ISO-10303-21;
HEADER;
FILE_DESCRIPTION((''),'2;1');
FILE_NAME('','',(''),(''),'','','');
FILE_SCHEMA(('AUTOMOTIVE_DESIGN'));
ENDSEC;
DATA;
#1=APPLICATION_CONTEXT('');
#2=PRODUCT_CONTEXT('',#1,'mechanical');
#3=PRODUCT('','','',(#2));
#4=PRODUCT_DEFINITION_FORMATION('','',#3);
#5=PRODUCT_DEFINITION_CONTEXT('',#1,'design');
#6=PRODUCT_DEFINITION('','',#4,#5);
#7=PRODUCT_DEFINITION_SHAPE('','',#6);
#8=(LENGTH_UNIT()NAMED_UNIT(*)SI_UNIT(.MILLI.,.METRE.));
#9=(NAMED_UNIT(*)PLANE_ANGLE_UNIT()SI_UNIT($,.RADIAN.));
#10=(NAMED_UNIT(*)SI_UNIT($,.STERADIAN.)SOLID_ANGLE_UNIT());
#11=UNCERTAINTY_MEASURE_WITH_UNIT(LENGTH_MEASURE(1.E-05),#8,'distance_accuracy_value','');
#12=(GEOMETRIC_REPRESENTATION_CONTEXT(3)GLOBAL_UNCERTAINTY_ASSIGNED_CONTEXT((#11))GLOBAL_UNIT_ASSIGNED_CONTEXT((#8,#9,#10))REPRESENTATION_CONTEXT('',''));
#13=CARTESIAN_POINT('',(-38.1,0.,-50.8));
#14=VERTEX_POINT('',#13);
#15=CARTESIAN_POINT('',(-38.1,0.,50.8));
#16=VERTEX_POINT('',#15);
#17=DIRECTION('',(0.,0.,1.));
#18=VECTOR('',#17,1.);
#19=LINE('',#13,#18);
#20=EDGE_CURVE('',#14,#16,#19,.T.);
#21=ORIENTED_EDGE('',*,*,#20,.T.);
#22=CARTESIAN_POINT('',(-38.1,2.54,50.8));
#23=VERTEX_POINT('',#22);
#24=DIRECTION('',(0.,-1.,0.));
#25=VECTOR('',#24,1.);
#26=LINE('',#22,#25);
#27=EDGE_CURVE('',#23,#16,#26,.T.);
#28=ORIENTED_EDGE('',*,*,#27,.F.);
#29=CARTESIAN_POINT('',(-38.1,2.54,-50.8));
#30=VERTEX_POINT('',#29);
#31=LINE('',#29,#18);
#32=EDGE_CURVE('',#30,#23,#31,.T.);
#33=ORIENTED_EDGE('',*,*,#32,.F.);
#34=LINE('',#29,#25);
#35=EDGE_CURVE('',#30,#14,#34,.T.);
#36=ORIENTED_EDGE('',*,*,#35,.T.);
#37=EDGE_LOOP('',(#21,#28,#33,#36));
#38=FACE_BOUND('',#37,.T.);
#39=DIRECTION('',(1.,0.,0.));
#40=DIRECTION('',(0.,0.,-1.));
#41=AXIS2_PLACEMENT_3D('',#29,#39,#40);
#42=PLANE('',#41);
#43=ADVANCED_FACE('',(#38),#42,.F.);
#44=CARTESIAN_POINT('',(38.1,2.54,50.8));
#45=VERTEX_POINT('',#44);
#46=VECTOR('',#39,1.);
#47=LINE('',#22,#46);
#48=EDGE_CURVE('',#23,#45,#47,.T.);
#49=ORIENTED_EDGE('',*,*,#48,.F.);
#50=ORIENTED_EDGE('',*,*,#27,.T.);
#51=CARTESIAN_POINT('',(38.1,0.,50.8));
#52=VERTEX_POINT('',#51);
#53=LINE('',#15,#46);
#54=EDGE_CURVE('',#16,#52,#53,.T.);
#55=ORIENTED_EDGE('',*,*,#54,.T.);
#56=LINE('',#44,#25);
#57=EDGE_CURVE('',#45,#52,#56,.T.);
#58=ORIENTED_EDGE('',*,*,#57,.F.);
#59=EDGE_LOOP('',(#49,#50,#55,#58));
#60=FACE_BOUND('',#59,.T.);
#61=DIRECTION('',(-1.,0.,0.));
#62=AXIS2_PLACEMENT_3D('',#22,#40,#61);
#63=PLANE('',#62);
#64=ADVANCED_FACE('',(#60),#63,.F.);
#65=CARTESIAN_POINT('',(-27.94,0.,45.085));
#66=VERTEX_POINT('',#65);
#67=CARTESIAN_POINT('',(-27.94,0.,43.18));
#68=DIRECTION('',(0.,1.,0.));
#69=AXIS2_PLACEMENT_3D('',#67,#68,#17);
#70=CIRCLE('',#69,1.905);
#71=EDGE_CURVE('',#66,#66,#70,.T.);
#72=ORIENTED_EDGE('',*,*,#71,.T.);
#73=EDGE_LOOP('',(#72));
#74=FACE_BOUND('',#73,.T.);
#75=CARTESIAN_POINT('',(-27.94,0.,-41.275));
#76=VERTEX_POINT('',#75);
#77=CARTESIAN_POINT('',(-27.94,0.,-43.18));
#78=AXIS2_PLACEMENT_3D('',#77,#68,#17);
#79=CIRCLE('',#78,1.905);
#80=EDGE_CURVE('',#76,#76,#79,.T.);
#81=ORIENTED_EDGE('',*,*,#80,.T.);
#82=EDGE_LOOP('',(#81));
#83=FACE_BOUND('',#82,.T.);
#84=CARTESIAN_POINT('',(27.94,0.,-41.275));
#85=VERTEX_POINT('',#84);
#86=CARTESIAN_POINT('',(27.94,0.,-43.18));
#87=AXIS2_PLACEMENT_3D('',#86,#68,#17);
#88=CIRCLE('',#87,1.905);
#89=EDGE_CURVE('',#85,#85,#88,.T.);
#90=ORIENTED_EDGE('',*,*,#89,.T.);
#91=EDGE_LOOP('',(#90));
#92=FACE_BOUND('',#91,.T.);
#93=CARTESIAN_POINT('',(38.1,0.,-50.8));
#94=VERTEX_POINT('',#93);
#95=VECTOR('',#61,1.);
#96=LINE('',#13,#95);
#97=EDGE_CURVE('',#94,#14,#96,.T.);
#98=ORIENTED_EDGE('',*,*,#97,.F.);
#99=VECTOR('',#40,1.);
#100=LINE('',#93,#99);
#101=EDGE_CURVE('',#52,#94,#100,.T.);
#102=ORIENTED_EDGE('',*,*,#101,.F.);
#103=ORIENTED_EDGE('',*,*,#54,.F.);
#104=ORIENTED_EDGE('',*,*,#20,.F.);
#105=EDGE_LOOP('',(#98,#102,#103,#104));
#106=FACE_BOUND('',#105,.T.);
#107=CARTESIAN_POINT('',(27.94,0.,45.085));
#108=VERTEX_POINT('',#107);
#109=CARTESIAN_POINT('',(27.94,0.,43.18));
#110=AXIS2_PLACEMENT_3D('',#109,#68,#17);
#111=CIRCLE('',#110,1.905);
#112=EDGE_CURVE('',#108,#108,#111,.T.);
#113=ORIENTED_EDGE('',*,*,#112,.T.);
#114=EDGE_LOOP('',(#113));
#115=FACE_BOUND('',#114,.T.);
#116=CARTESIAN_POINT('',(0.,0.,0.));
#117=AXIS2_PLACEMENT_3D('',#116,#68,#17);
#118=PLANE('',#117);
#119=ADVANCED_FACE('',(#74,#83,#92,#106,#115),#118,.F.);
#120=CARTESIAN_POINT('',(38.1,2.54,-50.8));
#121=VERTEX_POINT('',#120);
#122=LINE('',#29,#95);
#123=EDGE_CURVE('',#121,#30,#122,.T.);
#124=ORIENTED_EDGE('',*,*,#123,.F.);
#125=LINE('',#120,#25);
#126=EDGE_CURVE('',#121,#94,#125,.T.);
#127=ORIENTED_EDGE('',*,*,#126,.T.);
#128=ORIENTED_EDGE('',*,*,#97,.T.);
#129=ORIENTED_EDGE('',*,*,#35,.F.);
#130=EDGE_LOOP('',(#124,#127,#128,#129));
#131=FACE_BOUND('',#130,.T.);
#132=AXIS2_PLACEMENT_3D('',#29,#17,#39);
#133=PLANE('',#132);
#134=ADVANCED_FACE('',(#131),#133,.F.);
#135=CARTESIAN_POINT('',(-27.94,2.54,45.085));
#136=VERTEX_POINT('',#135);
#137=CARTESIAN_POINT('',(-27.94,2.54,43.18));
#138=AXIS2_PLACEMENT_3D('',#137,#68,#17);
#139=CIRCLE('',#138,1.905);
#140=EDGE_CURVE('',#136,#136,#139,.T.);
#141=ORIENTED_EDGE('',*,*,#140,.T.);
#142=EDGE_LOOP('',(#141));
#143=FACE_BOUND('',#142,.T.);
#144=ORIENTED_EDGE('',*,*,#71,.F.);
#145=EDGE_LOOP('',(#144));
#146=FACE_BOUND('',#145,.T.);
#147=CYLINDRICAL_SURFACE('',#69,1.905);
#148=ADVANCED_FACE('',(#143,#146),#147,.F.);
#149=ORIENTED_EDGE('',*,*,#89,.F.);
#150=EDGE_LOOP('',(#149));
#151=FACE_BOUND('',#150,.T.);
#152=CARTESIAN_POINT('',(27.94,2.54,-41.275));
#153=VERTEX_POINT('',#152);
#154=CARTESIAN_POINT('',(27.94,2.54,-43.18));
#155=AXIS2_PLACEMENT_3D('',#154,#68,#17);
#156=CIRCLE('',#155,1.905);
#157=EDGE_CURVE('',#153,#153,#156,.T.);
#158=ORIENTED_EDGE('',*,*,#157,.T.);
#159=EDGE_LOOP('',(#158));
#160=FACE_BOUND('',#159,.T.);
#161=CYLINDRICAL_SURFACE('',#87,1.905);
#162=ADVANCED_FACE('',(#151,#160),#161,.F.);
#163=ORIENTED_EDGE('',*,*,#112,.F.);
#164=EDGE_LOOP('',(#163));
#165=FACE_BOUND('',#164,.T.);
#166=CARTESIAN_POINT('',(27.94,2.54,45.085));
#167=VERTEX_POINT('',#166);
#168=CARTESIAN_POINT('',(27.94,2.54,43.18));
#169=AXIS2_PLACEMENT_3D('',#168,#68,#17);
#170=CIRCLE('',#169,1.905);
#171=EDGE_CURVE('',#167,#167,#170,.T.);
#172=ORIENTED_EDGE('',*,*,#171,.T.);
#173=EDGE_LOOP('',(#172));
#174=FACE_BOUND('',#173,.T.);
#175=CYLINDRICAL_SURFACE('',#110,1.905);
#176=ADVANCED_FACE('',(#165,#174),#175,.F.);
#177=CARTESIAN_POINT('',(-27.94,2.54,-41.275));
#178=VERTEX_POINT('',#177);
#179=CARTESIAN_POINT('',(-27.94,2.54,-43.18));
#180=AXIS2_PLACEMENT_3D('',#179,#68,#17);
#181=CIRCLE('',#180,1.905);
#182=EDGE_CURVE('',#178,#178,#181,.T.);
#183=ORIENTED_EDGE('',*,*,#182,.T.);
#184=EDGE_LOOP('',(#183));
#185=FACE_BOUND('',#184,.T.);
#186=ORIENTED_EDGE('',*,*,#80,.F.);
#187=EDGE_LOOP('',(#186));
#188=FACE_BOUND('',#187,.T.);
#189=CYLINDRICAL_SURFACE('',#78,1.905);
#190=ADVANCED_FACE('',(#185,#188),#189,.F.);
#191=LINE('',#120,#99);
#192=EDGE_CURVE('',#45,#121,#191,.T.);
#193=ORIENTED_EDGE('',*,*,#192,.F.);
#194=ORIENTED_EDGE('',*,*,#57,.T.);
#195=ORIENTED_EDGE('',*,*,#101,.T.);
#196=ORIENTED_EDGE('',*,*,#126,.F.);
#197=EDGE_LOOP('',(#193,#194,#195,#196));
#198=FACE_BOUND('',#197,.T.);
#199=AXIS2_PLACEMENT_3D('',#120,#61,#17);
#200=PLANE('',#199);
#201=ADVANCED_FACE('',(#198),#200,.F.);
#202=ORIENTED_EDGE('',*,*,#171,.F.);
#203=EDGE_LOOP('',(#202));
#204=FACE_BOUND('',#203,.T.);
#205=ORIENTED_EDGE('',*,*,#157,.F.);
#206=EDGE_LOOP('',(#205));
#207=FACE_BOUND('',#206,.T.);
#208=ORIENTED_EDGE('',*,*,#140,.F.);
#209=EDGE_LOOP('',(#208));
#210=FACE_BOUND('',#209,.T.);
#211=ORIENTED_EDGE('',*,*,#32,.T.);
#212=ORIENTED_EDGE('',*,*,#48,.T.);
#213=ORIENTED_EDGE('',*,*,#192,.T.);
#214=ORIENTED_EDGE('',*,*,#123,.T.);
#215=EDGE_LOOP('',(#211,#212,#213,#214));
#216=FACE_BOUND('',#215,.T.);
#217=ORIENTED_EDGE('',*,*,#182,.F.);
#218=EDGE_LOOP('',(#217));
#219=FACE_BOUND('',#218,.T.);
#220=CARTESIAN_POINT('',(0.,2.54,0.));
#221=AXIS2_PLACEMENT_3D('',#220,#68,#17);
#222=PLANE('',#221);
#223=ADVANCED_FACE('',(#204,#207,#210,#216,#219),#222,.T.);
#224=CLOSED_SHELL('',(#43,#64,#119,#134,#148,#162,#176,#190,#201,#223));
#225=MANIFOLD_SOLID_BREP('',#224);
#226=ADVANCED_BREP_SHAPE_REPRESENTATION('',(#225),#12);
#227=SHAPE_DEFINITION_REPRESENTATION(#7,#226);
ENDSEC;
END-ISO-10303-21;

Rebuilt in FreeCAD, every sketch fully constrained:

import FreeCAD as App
import Part
import Sketcher

V = App.Vector
Q = App.Units.Quantity


def add_polygon(sketch, points):
    """Adds a closed chain of lines whose ends are joined by coincident constraints."""
    first, n = sketch.GeometryCount, len(points)
    for a, b in zip(points, points[1:] + points[:1]):
        sketch.addGeometry(Part.LineSegment(App.Vector(*a, 0), App.Vector(*b, 0)), False)
    for i in range(n):
        sketch.addConstraint(Sketcher.Constraint("Coincident", first + i, 2, first + (i + 1) % n, 1))

doc = App.newDocument("Part")
params = doc.addObject("Spreadsheet::Sheet", "Params")
for row, (alias, value) in enumerate([
    ("sketch1_width", "3 in"),
    ("sketch1_height", "4 in"),
    ("pad1_length", "0.1 in"),
    ("sketch2_diameter", "0.15 in"),
], start=1):
    params.set(f"A{row}", alias)
    params.set(f"B{row}", "=" + value)
    params.setAlias(f"B{row}", alias)

body = doc.addObject("PartDesign::Body", "Body")

# Sketch on XZ plane
sketch1 = body.newObject("Sketcher::SketchObject", "Sketch")
sketch1.AttachmentSupport = (doc.getObject("XZ_Plane"), [""])
sketch1.MapMode = "FlatFace"
add_polygon(sketch1, [(-38, -51), (-38, 51), (38, 51), (38, -51)])  # lines 0-3
sketch1.addConstraint([
    Sketcher.Constraint("Vertical", 0),
    Sketcher.Constraint("Horizontal", 1),
    Sketcher.Constraint("Vertical", 2),
    Sketcher.Constraint("Horizontal", 3),
    Sketcher.Constraint("Symmetric", 0, 2, 2, 2, -1, 1),
    Sketcher.Constraint("DistanceX", 1, 1, 1, 2, Q("3 in")),
    Sketcher.Constraint("DistanceY", 0, 1, 0, 2, Q("4 in")),
])
sketch1.setExpression("Constraints[9]", "Params.sketch1_width")
sketch1.setExpression("Constraints[10]", "Params.sketch1_height")
pad1 = body.newObject("PartDesign::Pad", "Pad")
pad1.Profile = sketch1
pad1.setExpression("Length", "Params.pad1_length")
pad1.Reversed = True

# Sketch on XZ plane
sketch2 = body.newObject("Sketcher::SketchObject", "Sketch001")
sketch2.AttachmentSupport = (doc.getObject("XZ_Plane"), [""])
sketch2.MapMode = "FlatFace"
sketch2.AttachmentOffset = App.Placement(V(0, 0, -0.1 * 25.4), App.Rotation())
sketch2.addGeometry([
    Part.Circle(V(-27.9, -43.2, 0), V(0, 0, 1), 1.9),
    Part.Circle(V(27.9, -43.2, 0), V(0, 0, 1), 1.9),
    Part.Circle(V(-27.9, 43.2, 0), V(0, 0, 1), 1.9),
    Part.Circle(V(27.9, 43.2, 0), V(0, 0, 1), 1.9),
], False)
sketch2.addConstraint([
    Sketcher.Constraint("Equal", 0, 1),
    Sketcher.Constraint("Equal", 1, 2),
    Sketcher.Constraint("Equal", 2, 3),
    Sketcher.Constraint("Symmetric", 1, 3, 2, 3, -1, 1),
    Sketcher.Constraint("Symmetric", 0, 3, 3, 3, -1, 1),
    Sketcher.Constraint("Symmetric", 0, 3, 1, 3, -2),
    Sketcher.Constraint("Diameter", 0, Q("0.15 in")),
    Sketcher.Constraint("DistanceX", 0, 3, -1, 1, Q("1.1 in")),
    Sketcher.Constraint("DistanceY", 0, 3, -1, 1, Q("1.7 in")),
])
sketch2.setExpression("Constraints[6]", "Params.sketch2_diameter")
pocket1 = body.newObject("PartDesign::Pocket", "Pocket")
pocket1.Profile = sketch2
pocket1.Type = "ThroughAll"
pocket1.Reversed = True

doc.recompute()
